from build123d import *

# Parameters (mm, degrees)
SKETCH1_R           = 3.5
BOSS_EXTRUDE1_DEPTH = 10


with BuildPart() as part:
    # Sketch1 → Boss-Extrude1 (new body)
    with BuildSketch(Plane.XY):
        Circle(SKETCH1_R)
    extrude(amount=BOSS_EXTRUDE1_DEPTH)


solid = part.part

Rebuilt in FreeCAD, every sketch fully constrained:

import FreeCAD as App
import Part
import Sketcher

V = App.Vector
Q = App.Units.Quantity

doc = App.newDocument("Part")
params = doc.addObject("Spreadsheet::Sheet", "Params")
for row, (alias, value) in enumerate([
    ("sketch1_diameter", "7 mm"),
    ("pad1_length", "10 mm"),
], start=1):
    params.set(f"A{row}", alias)
    params.set(f"B{row}", "=" + value)
    params.setAlias(f"B{row}", alias)

body = doc.addObject("PartDesign::Body", "Body")

# Sketch on XY plane
sketch1 = doc.addObject("Sketcher::SketchObject", "Sketch")
body.addObject(sketch1)
sketch1.AttachmentSupport = (doc.XY_Plane, [""])
sketch1.MapMode = "FlatFace"
sketch1.addGeometry(Part.Circle(V(0, 0, 0), V(0, 0, 1), 3.5), False)
sketch1.addConstraint([
    Sketcher.Constraint("Coincident", 0, 3, -1, 1),
    Sketcher.Constraint("Diameter", 0, Q("7 mm")),
])
sketch1.setExpression("Constraints[1]", "Params.sketch1_diameter")
pad1 = doc.addObject("PartDesign::Pad", "Pad")
body.addObject(pad1)
pad1.Profile = sketch1
pad1.setExpression("Length", "Params.pad1_length")

doc.recompute()
